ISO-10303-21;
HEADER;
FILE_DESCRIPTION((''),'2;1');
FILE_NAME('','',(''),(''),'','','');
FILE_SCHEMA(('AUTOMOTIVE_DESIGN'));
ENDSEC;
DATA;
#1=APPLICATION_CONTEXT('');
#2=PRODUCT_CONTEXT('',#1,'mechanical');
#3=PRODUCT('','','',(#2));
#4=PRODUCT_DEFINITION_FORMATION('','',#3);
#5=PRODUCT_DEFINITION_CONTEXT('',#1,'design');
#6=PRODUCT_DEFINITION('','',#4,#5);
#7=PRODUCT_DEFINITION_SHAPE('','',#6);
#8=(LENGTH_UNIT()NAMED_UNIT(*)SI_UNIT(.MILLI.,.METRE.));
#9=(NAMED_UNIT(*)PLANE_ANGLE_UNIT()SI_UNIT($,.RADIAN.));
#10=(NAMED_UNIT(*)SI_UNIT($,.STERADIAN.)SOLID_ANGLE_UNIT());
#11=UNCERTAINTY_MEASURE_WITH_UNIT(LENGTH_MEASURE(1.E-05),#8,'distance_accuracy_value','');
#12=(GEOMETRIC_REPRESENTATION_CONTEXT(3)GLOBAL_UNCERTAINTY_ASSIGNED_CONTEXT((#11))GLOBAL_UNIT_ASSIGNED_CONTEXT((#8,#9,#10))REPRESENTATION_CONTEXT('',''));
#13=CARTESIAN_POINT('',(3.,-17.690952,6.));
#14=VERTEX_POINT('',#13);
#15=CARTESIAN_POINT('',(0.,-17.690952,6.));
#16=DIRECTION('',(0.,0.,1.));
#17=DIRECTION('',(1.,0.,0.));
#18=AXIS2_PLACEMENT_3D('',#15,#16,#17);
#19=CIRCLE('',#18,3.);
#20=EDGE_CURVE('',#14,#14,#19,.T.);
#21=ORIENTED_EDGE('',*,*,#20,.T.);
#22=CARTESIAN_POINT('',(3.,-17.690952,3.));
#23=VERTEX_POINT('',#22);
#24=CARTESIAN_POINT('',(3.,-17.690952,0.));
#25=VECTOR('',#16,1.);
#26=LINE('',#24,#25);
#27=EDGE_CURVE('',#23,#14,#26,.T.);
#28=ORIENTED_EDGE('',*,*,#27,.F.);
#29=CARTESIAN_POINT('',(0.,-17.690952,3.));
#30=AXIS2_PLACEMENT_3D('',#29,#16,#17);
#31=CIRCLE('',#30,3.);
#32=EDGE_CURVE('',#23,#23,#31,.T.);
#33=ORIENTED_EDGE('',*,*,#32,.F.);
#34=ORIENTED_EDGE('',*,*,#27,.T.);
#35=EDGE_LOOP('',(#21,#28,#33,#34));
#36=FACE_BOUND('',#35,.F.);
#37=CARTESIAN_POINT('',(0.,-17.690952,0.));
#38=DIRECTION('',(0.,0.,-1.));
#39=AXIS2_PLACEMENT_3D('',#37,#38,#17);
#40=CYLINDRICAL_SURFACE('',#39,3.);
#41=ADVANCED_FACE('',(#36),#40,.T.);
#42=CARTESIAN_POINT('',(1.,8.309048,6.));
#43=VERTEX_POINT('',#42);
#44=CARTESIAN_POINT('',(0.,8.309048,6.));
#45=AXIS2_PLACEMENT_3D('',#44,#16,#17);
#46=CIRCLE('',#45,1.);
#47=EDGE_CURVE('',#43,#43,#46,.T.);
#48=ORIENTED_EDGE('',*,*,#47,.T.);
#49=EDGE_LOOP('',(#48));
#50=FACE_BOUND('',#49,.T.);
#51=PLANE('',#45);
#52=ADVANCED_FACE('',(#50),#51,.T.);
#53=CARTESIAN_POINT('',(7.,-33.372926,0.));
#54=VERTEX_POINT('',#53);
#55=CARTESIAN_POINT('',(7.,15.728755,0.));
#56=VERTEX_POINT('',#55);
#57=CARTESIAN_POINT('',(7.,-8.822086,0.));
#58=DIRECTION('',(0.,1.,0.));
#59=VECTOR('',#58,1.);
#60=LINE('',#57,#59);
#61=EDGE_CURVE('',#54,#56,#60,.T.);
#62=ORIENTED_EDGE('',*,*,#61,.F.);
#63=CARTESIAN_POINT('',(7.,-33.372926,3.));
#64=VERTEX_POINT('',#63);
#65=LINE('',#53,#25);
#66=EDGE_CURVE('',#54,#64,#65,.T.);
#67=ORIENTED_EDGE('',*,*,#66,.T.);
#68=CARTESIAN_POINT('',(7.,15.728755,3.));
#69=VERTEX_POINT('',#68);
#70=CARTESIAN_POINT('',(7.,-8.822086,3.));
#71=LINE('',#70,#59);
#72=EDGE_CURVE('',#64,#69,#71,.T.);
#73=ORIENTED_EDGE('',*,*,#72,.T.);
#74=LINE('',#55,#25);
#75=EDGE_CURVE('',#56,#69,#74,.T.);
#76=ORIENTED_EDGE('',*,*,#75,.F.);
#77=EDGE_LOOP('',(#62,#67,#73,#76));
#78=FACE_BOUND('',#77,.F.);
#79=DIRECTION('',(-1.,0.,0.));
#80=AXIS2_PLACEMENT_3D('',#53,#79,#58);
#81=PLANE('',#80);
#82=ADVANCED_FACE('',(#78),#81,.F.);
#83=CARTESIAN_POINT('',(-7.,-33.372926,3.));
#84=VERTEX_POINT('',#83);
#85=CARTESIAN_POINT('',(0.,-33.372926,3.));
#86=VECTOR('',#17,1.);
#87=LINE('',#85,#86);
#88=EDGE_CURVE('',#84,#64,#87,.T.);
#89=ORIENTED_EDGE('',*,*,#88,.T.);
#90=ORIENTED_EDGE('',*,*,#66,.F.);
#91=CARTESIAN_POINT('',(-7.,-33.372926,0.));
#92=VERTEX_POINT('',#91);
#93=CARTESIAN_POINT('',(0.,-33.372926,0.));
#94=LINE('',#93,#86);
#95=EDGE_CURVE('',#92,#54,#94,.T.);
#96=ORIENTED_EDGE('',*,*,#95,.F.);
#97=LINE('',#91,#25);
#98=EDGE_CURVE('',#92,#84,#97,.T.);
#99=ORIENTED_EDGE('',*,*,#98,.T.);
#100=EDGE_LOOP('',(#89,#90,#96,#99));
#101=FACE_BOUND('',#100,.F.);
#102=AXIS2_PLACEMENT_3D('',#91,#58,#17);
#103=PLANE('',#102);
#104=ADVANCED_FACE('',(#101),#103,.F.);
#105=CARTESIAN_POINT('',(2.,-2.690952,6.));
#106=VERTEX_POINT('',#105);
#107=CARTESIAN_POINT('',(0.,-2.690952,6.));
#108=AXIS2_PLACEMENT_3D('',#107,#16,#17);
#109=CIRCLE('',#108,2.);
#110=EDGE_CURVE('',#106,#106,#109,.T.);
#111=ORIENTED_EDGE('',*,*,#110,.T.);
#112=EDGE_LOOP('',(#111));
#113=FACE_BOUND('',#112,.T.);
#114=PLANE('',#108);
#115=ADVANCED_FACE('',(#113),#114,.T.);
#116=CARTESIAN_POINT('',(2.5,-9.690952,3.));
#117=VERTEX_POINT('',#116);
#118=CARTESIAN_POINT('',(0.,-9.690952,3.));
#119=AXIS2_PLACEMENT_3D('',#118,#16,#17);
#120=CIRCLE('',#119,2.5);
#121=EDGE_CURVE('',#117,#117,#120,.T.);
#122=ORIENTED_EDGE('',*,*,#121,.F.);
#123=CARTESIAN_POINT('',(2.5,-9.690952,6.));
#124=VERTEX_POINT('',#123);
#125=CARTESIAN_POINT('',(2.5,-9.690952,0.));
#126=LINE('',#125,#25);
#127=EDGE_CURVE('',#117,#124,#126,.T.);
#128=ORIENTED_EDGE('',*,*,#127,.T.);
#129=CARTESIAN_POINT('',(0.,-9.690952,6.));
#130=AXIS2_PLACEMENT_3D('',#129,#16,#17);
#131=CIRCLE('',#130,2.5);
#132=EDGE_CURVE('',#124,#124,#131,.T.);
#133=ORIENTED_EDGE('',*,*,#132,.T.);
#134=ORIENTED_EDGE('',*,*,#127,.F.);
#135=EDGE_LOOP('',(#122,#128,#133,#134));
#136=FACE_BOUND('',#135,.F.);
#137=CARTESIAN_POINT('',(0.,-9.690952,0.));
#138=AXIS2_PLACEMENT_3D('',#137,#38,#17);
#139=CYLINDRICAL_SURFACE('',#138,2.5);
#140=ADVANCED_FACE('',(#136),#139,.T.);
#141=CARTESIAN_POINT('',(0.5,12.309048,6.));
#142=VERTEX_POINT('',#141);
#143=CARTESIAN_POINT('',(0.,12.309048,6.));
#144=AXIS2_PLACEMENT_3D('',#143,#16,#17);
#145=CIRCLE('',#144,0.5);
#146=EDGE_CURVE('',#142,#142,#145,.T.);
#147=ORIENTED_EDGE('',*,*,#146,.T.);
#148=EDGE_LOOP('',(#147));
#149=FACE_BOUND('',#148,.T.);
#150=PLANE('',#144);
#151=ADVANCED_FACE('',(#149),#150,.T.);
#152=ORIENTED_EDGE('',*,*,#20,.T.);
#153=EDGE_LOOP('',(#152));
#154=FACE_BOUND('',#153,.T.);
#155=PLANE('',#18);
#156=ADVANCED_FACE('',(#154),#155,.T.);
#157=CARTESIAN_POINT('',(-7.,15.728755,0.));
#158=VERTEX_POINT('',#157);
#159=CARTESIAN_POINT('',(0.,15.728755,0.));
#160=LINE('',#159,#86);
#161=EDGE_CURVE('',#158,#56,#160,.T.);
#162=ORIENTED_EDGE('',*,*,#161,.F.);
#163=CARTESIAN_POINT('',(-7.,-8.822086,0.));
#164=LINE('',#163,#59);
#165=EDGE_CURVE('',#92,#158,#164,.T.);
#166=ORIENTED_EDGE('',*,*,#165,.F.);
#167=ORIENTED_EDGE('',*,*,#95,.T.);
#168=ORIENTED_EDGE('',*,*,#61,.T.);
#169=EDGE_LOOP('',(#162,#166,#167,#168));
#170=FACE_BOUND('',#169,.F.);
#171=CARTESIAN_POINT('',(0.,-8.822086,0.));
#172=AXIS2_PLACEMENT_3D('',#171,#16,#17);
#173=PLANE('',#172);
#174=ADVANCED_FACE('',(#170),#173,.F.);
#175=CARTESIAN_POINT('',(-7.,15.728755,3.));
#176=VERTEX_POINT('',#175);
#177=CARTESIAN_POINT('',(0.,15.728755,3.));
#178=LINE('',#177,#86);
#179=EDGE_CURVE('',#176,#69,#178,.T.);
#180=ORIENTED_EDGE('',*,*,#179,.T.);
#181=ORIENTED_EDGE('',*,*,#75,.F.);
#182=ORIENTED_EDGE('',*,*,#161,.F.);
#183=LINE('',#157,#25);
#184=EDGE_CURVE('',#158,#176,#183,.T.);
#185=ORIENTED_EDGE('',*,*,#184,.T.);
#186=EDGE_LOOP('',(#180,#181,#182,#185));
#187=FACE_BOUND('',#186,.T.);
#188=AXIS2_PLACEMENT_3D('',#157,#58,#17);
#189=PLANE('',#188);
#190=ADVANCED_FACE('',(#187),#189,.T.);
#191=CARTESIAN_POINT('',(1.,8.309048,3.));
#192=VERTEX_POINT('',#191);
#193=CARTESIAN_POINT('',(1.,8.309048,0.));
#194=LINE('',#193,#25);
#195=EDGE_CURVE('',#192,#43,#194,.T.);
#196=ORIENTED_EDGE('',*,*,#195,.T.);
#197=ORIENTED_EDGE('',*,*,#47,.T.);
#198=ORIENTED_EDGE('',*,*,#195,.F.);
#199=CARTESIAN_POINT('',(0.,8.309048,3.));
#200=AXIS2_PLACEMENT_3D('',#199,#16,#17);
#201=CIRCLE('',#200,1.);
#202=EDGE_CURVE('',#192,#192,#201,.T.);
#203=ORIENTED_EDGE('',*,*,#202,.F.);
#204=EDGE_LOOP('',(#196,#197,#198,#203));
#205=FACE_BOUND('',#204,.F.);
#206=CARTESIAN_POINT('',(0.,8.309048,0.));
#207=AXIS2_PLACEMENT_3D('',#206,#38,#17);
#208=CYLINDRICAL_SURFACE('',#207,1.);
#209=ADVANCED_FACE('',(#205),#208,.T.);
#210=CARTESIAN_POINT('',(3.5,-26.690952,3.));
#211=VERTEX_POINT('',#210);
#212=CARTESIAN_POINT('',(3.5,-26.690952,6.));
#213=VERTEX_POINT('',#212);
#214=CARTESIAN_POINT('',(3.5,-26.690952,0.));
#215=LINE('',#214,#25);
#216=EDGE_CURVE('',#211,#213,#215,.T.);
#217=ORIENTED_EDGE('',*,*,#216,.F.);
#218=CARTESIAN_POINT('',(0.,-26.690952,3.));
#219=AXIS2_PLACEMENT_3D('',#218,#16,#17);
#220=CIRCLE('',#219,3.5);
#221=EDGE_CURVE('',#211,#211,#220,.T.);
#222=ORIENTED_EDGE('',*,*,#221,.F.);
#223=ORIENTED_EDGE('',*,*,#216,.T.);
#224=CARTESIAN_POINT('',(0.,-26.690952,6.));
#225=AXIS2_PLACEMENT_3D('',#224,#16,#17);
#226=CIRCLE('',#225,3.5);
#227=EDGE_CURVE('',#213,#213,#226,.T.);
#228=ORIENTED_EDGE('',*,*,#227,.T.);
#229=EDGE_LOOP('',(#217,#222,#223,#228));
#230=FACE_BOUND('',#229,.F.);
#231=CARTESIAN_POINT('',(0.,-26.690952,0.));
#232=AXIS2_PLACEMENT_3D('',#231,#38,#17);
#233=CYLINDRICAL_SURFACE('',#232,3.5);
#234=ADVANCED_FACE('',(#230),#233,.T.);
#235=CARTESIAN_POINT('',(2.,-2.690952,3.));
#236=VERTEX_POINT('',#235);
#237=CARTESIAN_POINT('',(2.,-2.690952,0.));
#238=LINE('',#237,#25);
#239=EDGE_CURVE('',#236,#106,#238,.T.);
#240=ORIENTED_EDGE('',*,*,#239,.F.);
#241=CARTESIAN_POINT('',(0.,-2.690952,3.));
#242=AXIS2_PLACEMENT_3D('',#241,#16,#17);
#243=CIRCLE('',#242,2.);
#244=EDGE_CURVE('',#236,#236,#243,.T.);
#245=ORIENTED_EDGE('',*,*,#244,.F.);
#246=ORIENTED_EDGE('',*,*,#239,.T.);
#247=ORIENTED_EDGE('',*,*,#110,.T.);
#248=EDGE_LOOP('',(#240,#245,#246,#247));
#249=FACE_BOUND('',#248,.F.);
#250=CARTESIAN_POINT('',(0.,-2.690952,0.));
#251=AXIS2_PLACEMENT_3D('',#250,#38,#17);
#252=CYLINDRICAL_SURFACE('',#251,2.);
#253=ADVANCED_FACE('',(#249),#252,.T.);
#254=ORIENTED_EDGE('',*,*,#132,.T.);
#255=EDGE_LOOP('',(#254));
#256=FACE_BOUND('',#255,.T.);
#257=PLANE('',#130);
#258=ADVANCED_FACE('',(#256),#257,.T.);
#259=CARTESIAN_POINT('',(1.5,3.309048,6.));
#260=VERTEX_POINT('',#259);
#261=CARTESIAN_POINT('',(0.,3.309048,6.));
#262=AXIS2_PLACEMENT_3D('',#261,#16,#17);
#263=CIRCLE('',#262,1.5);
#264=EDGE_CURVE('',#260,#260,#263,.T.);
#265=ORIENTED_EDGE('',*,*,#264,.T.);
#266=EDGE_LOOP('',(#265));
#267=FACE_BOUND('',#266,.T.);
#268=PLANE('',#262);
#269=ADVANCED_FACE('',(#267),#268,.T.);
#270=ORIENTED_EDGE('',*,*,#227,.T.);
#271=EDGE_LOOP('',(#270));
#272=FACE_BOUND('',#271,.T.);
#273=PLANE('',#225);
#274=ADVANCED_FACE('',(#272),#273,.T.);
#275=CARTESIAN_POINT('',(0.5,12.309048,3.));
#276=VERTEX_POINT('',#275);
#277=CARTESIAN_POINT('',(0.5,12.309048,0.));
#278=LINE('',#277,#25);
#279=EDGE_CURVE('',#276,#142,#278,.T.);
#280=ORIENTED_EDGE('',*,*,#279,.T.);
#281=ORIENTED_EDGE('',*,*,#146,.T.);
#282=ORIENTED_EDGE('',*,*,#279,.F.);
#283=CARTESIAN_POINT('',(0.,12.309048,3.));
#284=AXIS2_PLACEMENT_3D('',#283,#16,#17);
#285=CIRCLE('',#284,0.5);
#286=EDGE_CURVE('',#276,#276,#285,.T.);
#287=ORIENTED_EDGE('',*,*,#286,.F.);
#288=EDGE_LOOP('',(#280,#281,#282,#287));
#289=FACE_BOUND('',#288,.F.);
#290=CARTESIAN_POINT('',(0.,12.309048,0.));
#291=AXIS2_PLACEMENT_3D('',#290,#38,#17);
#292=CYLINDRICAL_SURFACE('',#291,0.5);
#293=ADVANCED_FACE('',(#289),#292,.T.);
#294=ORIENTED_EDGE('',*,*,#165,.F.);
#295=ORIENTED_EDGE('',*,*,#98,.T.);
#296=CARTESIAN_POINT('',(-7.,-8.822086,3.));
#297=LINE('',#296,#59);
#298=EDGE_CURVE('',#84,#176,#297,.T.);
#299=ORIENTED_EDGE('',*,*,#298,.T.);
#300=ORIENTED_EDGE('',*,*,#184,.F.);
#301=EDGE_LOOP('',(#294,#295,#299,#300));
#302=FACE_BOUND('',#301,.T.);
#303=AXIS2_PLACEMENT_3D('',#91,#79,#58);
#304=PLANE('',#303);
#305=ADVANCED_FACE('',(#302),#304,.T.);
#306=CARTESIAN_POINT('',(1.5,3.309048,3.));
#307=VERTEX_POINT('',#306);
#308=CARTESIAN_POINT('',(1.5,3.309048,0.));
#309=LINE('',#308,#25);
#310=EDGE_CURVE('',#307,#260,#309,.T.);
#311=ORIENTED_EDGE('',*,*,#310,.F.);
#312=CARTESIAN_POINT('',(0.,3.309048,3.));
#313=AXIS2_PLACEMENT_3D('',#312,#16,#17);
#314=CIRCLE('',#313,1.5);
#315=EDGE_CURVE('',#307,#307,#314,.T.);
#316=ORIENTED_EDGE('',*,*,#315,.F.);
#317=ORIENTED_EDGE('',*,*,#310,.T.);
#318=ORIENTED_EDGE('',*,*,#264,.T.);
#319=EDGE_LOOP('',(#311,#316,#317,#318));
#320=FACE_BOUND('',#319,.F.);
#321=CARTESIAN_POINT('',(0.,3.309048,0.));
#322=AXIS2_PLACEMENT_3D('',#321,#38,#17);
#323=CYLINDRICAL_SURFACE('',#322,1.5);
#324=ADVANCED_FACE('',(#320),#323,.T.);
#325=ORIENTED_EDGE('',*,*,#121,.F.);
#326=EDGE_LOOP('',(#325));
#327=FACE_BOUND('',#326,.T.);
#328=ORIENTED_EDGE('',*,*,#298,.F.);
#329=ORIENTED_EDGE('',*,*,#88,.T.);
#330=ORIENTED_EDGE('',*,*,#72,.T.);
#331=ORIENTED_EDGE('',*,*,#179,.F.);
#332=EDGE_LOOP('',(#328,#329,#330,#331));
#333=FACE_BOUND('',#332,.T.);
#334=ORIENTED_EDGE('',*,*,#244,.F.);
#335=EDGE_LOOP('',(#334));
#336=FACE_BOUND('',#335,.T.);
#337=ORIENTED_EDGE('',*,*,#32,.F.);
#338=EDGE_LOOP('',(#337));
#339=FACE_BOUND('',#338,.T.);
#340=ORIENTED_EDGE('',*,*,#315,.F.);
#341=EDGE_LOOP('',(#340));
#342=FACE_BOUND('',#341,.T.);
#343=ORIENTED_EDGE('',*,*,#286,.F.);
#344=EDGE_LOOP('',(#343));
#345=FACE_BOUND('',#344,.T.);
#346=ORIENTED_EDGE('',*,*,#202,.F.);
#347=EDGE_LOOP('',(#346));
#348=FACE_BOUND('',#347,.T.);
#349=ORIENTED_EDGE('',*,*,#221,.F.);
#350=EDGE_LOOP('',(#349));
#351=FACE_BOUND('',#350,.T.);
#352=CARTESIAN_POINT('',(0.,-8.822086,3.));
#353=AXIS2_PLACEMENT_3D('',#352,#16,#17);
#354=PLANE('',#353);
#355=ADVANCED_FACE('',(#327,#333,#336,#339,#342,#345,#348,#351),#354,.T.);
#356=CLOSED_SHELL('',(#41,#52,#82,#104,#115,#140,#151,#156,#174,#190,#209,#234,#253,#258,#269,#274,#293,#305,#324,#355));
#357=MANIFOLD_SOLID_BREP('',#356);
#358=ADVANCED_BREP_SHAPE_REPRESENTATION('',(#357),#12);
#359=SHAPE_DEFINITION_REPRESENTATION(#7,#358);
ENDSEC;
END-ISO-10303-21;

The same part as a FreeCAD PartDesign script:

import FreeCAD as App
import Part
import Sketcher

V = App.Vector
Q = App.Units.Quantity


def add_polygon(sketch, points):
    """Adds a closed chain of lines whose ends are joined by coincident constraints."""
    first, n = sketch.GeometryCount, len(points)
    for a, b in zip(points, points[1:] + points[:1]):
        sketch.addGeometry(Part.LineSegment(App.Vector(*a, 0), App.Vector(*b, 0)), False)
    for i in range(n):
        sketch.addConstraint(Sketcher.Constraint("Coincident", first + i, 2, first + (i + 1) % n, 1))

doc = App.newDocument("Part")
body = doc.addObject("PartDesign::Body", "Body")

# Sketch on XY plane
sketch1 = body.newObject("Sketcher::SketchObject", "Sketch")
sketch1.AttachmentSupport = (doc.getObject("XY_Plane"), [""])
sketch1.MapMode = "FlatFace"
add_polygon(sketch1, [(-7, 15.7), (-7, -33.4), (7, -33.4), (7, 15.7)])  # lines 0-3
sketch1.addGeometry(Part.Circle(V(0, -26.7, 0), V(0, 0, 1), 3.5), False)  # 4
sketch1.addGeometry(Part.Circle(V(0, -17.7, 0), V(0, 0, 1), 3), False)  # 5
sketch1.addGeometry(Part.Circle(V(0, -9.7, 0), V(0, 0, 1), 2.5), False)  # 6
sketch1.addGeometry(Part.Circle(V(0, -2.7, 0), V(0, 0, 1), 2), False)  # 7
sketch1.addGeometry(Part.Circle(V(0, 3.3, 0), V(0, 0, 1), 1.5), False)  # 8
sketch1.addGeometry(Part.Circle(V(0, 8.3, 0), V(0, 0, 1), 1), False)  # 9
sketch1.addGeometry(Part.Circle(V(0, 12.3, 0), V(0, 0, 1), 0.5), False)  # 10
sketch1.addConstraint(Sketcher.Constraint("Vertical", 0))
sketch1.addConstraint(Sketcher.Constraint("Horizontal", 1))
sketch1.addConstraint(Sketcher.Constraint("Vertical", 2))
sketch1.addConstraint(Sketcher.Constraint("Horizontal", 3))
sketch1.addConstraint(Sketcher.Constraint("PointOnObject", 4, 3, -2))
sketch1.addConstraint(Sketcher.Constraint("PointOnObject", 5, 3, -2))
sketch1.addConstraint(Sketcher.Constraint("PointOnObject", 6, 3, -2))
sketch1.addConstraint(Sketcher.Constraint("PointOnObject", 7, 3, -2))
sketch1.addConstraint(Sketcher.Constraint("PointOnObject", 8, 3, -2))
sketch1.addConstraint(Sketcher.Constraint("PointOnObject", 9, 3, -2))
sketch1.addConstraint(Sketcher.Constraint("PointOnObject", 10, 3, -2))
sketch1.addConstraint(Sketcher.Constraint("Diameter", 4, Q("7 mm")))
sketch1.addConstraint(Sketcher.Constraint("Diameter", 5, Q("6 mm")))
sketch1.addConstraint(Sketcher.Constraint("Diameter", 6, Q("5 mm")))
sketch1.addConstraint(Sketcher.Constraint("Diameter", 7, Q("4 mm")))
sketch1.addConstraint(Sketcher.Constraint("Diameter", 8, Q("3 mm")))
sketch1.addConstraint(Sketcher.Constraint("Diameter", 9, Q("2 mm")))
sketch1.addConstraint(Sketcher.Constraint("Diameter", 10, Q("1 mm")))
sketch1.addConstraint(Sketcher.Constraint("DistanceX", 1, 1, 1, 2, Q("14 mm")))
sketch1.addConstraint(Sketcher.Constraint("DistanceX", 0, 2, -1, 1, Q("7 mm")))
sketch1.addConstraint(Sketcher.Constraint("DistanceY", 4, 3, 5, 3, Q("9 mm")))
sketch1.addConstraint(Sketcher.Constraint("DistanceY", 5, 3, 6, 3, Q("8 mm")))
sketch1.addConstraint(Sketcher.Constraint("DistanceY", 6, 3, 7, 3, Q("7 mm")))
sketch1.addConstraint(Sketcher.Constraint("DistanceY", 7, 3, 8, 3, Q("6 mm")))
sketch1.addConstraint(Sketcher.Constraint("DistanceY", 8, 3, 9, 3, Q("5 mm")))
sketch1.addConstraint(Sketcher.Constraint("DistanceY", 9, 3, 10, 3, Q("4 mm")))
sketch1.addConstraint(Sketcher.Constraint("DistanceY", 0, 2, 0, 1, Q("49.101681 mm")))
sketch1.addConstraint(Sketcher.Constraint("DistanceY", 4, 3, -1, 1, Q("26.690952 mm")))
sketch1.addConstraint(Sketcher.Constraint("DistanceY", 0, 2, -1, 1, Q("33.372926 mm")))
pad1 = body.newObject("PartDesign::Pad", "Pad")
pad1.Profile = sketch1
pad1.Length = 3

# Sketch on XY plane
sketch2 = body.newObject("Sketcher::SketchObject", "Sketch001")
sketch2.AttachmentSupport = (doc.getObject("XY_Plane"), [""])
sketch2.MapMode = "FlatFace"
sketch2.addGeometry(Part.Circle(V(0, -26.7, 0), V(0, 0, 1), 3.5), False)
sketch2.addGeometry(Part.Circle(V(0, -17.7, 0), V(0, 0, 1), 3), False)
sketch2.addGeometry(Part.Circle(V(0, -9.7, 0), V(0, 0, 1), 2.5), False)
sketch2.addGeometry(Part.Circle(V(0, -2.7, 0), V(0, 0, 1), 2), False)
sketch2.addGeometry(Part.Circle(V(0, 3.3, 0), V(0, 0, 1), 1.5), False)
sketch2.addGeometry(Part.Circle(V(0, 8.3, 0), V(0, 0, 1), 1), False)
sketch2.addGeometry(Part.Circle(V(0, 12.3, 0), V(0, 0, 1), 0.5), False)
sketch2.addConstraint(Sketcher.Constraint("PointOnObject", 0, 3, -2))
sketch2.addConstraint(Sketcher.Constraint("PointOnObject", 1, 3, -2))
sketch2.addConstraint(Sketcher.Constraint("PointOnObject", 2, 3, -2))
sketch2.addConstraint(Sketcher.Constraint("PointOnObject", 3, 3, -2))
sketch2.addConstraint(Sketcher.Constraint("PointOnObject", 4, 3, -2))
sketch2.addConstraint(Sketcher.Constraint("PointOnObject", 5, 3, -2))
sketch2.addConstraint(Sketcher.Constraint("PointOnObject", 6, 3, -2))
sketch2.addConstraint(Sketcher.Constraint("Diameter", 0, Q("7 mm")))
sketch2.addConstraint(Sketcher.Constraint("Diameter", 1, Q("6 mm")))
sketch2.addConstraint(Sketcher.Constraint("Diameter", 2, Q("5 mm")))
sketch2.addConstraint(Sketcher.Constraint("Diameter", 3, Q("4 mm")))
sketch2.addConstraint(Sketcher.Constraint("Diameter", 4, Q("3 mm")))
sketch2.addConstraint(Sketcher.Constraint("Diameter", 5, Q("2 mm")))
sketch2.addConstraint(Sketcher.Constraint("Diameter", 6, Q("1 mm")))
sketch2.addConstraint(Sketcher.Constraint("DistanceY", 0, 3, 1, 3, Q("9 mm")))
sketch2.addConstraint(Sketcher.Constraint("DistanceY", 1, 3, 2, 3, Q("8 mm")))
sketch2.addConstraint(Sketcher.Constraint("DistanceY", 2, 3, 3, 3, Q("7 mm")))
sketch2.addConstraint(Sketcher.Constraint("DistanceY", 3, 3, 4, 3, Q("6 mm")))
sketch2.addConstraint(Sketcher.Constraint("DistanceY", 4, 3, 5, 3, Q("5 mm")))
sketch2.addConstraint(Sketcher.Constraint("DistanceY", 5, 3, 6, 3, Q("4 mm")))
sketch2.addConstraint(Sketcher.Constraint("DistanceY", 0, 3, -1, 1, Q("26.690952 mm")))
pad2 = body.newObject("PartDesign::Pad", "Pad001")
pad2.Profile = sketch2
pad2.Length = 6

doc.recompute()
